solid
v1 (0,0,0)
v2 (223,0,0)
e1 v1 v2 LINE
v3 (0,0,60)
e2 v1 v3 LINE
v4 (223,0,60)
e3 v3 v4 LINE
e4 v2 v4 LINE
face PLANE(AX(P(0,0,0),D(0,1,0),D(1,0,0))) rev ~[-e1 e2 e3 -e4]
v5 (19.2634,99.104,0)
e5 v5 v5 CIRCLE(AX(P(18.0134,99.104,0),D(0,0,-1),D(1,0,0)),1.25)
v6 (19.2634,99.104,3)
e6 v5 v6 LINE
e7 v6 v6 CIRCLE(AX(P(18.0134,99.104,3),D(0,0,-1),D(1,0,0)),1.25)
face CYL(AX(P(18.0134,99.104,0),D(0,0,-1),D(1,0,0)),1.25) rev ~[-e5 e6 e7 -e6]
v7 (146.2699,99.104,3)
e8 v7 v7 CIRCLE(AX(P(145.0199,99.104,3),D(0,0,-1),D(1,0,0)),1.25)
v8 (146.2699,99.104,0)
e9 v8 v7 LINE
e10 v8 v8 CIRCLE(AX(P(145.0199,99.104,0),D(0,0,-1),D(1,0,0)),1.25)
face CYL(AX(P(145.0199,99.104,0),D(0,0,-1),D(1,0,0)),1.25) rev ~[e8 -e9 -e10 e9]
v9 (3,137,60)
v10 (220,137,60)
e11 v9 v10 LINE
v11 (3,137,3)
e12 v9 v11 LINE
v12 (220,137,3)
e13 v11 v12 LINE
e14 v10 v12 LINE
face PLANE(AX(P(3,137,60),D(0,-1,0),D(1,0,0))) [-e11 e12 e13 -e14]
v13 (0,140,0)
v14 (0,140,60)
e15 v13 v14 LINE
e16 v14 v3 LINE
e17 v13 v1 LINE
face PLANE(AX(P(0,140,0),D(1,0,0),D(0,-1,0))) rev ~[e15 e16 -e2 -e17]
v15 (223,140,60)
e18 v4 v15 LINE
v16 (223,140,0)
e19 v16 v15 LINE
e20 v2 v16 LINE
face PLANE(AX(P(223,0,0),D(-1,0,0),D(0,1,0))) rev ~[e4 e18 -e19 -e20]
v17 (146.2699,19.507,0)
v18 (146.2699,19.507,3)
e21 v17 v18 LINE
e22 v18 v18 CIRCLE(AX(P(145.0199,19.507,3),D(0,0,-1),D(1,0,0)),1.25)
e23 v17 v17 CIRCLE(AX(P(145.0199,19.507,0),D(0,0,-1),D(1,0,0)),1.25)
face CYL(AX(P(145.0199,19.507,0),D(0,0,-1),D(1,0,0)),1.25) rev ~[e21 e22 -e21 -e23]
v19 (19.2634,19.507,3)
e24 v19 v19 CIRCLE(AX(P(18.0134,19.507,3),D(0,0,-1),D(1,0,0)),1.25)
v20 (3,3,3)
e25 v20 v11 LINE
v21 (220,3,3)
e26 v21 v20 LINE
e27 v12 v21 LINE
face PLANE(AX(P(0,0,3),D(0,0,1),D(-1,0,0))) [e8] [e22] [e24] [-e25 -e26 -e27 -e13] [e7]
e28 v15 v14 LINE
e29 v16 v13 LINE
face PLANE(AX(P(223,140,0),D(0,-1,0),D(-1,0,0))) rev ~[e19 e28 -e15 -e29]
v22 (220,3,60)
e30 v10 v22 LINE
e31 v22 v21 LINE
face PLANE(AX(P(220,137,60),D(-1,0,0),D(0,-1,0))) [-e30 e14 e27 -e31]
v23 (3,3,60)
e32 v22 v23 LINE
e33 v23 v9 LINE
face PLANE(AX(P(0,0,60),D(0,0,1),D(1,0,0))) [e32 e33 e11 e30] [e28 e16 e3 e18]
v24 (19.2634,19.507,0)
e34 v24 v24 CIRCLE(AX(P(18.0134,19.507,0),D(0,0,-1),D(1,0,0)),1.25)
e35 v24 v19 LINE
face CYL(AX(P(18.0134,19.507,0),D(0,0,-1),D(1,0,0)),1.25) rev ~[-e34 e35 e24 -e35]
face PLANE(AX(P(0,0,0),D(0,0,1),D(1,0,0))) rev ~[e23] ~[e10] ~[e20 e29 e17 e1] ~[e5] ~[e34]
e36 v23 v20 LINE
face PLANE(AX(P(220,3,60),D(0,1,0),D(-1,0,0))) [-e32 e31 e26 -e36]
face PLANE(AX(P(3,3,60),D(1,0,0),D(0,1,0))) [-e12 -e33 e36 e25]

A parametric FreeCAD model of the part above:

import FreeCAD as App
import Part
import Sketcher

V = App.Vector

doc = App.newDocument("Part")
params = doc.addObject("Spreadsheet::Sheet", "Params")
for row, (alias, value) in enumerate([
    ("sketch1_width", "223 mm"),
    ("sketch1_height", "140 mm"),
    ("pad1_length", "60 mm"),
    ("sketch2_width", "217 mm"),
    ("sketch2_height", "134 mm"),
    ("pocket1_length", "57 mm"),
    ("sketch3_diameter", "2.5 mm"),
    ("pocket2_length", "3 mm"),
], start=1):
    params.set(f"A{row}", alias)
    params.set(f"B{row}", "=" + value)
    params.setAlias(f"B{row}", alias)

body = doc.addObject("PartDesign::Body", "Body")

sketch1 = doc.addObject("Sketcher::SketchObject", "Sketch")
body.addObject(sketch1)
sketch1.AttachmentSupport = (doc.XY_Plane, [""])
sketch1.MapMode = "FlatFace"
sketch1.addGeometry(Part.LineSegment(V(0, 140, 0), V(0, 0, 0)), False)
sketch1.addGeometry(Part.LineSegment(V(0, 0, 0), V(223, 0, 0)), False)
sketch1.addGeometry(Part.LineSegment(V(223, 0, 0), V(223, 140, 0)), False)
sketch1.addGeometry(Part.LineSegment(V(223, 140, 0), V(0, 140, 0)), False)
sketch1.addConstraint(Sketcher.Constraint("Coincident", 0, 2, 1, 1))
sketch1.addConstraint(Sketcher.Constraint("Coincident", 1, 2, 2, 1))
sketch1.addConstraint(Sketcher.Constraint("Coincident", 2, 2, 3, 1))
sketch1.addConstraint(Sketcher.Constraint("Coincident", 3, 2, 0, 1))
sketch1.addConstraint(Sketcher.Constraint("Vertical", 0))
sketch1.addConstraint(Sketcher.Constraint("Horizontal", 1))
sketch1.addConstraint(Sketcher.Constraint("Vertical", 2))
sketch1.addConstraint(Sketcher.Constraint("Horizontal", 3))
sketch1.addConstraint(Sketcher.Constraint("Coincident", 0, 2, -1, 1))
sketch1.addConstraint(Sketcher.Constraint("DistanceX", 1, 1, 1, 2, 223.0))
sketch1.addConstraint(Sketcher.Constraint("DistanceY", 0, 2, 0, 1, 140.0))
sketch1.setExpression("Constraints[9]", "Params.sketch1_width")
sketch1.setExpression("Constraints[10]", "Params.sketch1_height")
pad1 = doc.addObject("PartDesign::Pad", "Pad")
body.addObject(pad1)
pad1.Profile = sketch1
pad1.setExpression("Length", "Params.pad1_length")

sketch2 = doc.addObject("Sketcher::SketchObject", "Sketch001")
body.addObject(sketch2)
sketch2.AttachmentSupport = (doc.XY_Plane, [""])
sketch2.MapMode = "FlatFace"
sketch2.AttachmentOffset = App.Placement(V(0, 0, 60), App.Rotation())
sketch2.addGeometry(Part.LineSegment(V(220, 137, 0), V(3, 137, 0)), False)
sketch2.addGeometry(Part.LineSegment(V(3, 137, 0), V(3, 3, 0)), False)
sketch2.addGeometry(Part.LineSegment(V(3, 3, 0), V(220, 3, 0)), False)
sketch2.addGeometry(Part.LineSegment(V(220, 3, 0), V(220, 137, 0)), False)
sketch2.addConstraint(Sketcher.Constraint("Coincident", 0, 2, 1, 1))
sketch2.addConstraint(Sketcher.Constraint("Coincident", 1, 2, 2, 1))
sketch2.addConstraint(Sketcher.Constraint("Coincident", 2, 2, 3, 1))
sketch2.addConstraint(Sketcher.Constraint("Coincident", 3, 2, 0, 1))
sketch2.addConstraint(Sketcher.Constraint("Horizontal", 0))
sketch2.addConstraint(Sketcher.Constraint("Vertical", 1))
sketch2.addConstraint(Sketcher.Constraint("Horizontal", 2))
sketch2.addConstraint(Sketcher.Constraint("Vertical", 3))
sketch2.addConstraint(Sketcher.Constraint("DistanceX", -1, 1, 0, 2, 3.0))
sketch2.addConstraint(Sketcher.Constraint("DistanceY", -1, 1, 1, 2, 3.0))
sketch2.addConstraint(Sketcher.Constraint("DistanceX", 0, 2, 0, 1, 217.0))
sketch2.addConstraint(Sketcher.Constraint("DistanceY", 1, 2, 1, 1, 134.0))
sketch2.setExpression("Constraints[10]", "Params.sketch2_width")
sketch2.setExpression("Constraints[11]", "Params.sketch2_height")
pocket1 = doc.addObject("PartDesign::Pocket", "Pocket")
body.addObject(pocket1)
pocket1.Profile = sketch2
pocket1.setExpression("Length", "Params.pocket1_length")

sketch3 = doc.addObject("Sketcher::SketchObject", "Sketch002")
body.addObject(sketch3)
sketch3.AttachmentSupport = (doc.XY_Plane, [""])
sketch3.MapMode = "FlatFace"
sketch3.addGeometry(Part.Circle(V(145, 99.1, 0), V(0, 0, 1), 1.2), False)
sketch3.addGeometry(Part.Circle(V(145, 19.5, 0), V(0, 0, 1), 1.2), False)
sketch3.addGeometry(Part.Circle(V(18, 99.1, 0), V(0, 0, 1), 1.2), False)
sketch3.addGeometry(Part.Circle(V(18, 19.5, 0), V(0, 0, 1), 1.2), False)
sketch3.addConstraint(Sketcher.Constraint("Equal", 0, 1))
sketch3.addConstraint(Sketcher.Constraint("Equal", 1, 2))
sketch3.addConstraint(Sketcher.Constraint("Equal", 2, 3))
sketch3.addConstraint(Sketcher.Constraint("Horizontal", 0, 3, 2, 3))
sketch3.addConstraint(Sketcher.Constraint("Horizontal", 1, 3, 3, 3))
sketch3.addConstraint(Sketcher.Constraint("Vertical", 0, 3, 1, 3))
sketch3.addConstraint(Sketcher.Constraint("Vertical", 2, 3, 3, 3))
sketch3.addConstraint(Sketcher.Constraint("Diameter", 0, 2.5))
sketch3.addConstraint(Sketcher.Constraint("DistanceX", -1, 1, 0, 3, 145.02))
sketch3.addConstraint(Sketcher.Constraint("DistanceY", -1, 1, 0, 3, 99.104))
sketch3.addConstraint(Sketcher.Constraint("DistanceY", -1, 1, 1, 3, 19.507))
sketch3.addConstraint(Sketcher.Constraint("DistanceX", -1, 1, 2, 3, 18.0134))
sketch3.setExpression("Constraints[7]", "Params.sketch3_diameter")
pocket2 = doc.addObject("PartDesign::Pocket", "Pocket001")
body.addObject(pocket2)
pocket2.Profile = sketch3
pocket2.setExpression("Length", "Params.pocket2_length")
pocket2.Reversed = True

doc.recompute()
